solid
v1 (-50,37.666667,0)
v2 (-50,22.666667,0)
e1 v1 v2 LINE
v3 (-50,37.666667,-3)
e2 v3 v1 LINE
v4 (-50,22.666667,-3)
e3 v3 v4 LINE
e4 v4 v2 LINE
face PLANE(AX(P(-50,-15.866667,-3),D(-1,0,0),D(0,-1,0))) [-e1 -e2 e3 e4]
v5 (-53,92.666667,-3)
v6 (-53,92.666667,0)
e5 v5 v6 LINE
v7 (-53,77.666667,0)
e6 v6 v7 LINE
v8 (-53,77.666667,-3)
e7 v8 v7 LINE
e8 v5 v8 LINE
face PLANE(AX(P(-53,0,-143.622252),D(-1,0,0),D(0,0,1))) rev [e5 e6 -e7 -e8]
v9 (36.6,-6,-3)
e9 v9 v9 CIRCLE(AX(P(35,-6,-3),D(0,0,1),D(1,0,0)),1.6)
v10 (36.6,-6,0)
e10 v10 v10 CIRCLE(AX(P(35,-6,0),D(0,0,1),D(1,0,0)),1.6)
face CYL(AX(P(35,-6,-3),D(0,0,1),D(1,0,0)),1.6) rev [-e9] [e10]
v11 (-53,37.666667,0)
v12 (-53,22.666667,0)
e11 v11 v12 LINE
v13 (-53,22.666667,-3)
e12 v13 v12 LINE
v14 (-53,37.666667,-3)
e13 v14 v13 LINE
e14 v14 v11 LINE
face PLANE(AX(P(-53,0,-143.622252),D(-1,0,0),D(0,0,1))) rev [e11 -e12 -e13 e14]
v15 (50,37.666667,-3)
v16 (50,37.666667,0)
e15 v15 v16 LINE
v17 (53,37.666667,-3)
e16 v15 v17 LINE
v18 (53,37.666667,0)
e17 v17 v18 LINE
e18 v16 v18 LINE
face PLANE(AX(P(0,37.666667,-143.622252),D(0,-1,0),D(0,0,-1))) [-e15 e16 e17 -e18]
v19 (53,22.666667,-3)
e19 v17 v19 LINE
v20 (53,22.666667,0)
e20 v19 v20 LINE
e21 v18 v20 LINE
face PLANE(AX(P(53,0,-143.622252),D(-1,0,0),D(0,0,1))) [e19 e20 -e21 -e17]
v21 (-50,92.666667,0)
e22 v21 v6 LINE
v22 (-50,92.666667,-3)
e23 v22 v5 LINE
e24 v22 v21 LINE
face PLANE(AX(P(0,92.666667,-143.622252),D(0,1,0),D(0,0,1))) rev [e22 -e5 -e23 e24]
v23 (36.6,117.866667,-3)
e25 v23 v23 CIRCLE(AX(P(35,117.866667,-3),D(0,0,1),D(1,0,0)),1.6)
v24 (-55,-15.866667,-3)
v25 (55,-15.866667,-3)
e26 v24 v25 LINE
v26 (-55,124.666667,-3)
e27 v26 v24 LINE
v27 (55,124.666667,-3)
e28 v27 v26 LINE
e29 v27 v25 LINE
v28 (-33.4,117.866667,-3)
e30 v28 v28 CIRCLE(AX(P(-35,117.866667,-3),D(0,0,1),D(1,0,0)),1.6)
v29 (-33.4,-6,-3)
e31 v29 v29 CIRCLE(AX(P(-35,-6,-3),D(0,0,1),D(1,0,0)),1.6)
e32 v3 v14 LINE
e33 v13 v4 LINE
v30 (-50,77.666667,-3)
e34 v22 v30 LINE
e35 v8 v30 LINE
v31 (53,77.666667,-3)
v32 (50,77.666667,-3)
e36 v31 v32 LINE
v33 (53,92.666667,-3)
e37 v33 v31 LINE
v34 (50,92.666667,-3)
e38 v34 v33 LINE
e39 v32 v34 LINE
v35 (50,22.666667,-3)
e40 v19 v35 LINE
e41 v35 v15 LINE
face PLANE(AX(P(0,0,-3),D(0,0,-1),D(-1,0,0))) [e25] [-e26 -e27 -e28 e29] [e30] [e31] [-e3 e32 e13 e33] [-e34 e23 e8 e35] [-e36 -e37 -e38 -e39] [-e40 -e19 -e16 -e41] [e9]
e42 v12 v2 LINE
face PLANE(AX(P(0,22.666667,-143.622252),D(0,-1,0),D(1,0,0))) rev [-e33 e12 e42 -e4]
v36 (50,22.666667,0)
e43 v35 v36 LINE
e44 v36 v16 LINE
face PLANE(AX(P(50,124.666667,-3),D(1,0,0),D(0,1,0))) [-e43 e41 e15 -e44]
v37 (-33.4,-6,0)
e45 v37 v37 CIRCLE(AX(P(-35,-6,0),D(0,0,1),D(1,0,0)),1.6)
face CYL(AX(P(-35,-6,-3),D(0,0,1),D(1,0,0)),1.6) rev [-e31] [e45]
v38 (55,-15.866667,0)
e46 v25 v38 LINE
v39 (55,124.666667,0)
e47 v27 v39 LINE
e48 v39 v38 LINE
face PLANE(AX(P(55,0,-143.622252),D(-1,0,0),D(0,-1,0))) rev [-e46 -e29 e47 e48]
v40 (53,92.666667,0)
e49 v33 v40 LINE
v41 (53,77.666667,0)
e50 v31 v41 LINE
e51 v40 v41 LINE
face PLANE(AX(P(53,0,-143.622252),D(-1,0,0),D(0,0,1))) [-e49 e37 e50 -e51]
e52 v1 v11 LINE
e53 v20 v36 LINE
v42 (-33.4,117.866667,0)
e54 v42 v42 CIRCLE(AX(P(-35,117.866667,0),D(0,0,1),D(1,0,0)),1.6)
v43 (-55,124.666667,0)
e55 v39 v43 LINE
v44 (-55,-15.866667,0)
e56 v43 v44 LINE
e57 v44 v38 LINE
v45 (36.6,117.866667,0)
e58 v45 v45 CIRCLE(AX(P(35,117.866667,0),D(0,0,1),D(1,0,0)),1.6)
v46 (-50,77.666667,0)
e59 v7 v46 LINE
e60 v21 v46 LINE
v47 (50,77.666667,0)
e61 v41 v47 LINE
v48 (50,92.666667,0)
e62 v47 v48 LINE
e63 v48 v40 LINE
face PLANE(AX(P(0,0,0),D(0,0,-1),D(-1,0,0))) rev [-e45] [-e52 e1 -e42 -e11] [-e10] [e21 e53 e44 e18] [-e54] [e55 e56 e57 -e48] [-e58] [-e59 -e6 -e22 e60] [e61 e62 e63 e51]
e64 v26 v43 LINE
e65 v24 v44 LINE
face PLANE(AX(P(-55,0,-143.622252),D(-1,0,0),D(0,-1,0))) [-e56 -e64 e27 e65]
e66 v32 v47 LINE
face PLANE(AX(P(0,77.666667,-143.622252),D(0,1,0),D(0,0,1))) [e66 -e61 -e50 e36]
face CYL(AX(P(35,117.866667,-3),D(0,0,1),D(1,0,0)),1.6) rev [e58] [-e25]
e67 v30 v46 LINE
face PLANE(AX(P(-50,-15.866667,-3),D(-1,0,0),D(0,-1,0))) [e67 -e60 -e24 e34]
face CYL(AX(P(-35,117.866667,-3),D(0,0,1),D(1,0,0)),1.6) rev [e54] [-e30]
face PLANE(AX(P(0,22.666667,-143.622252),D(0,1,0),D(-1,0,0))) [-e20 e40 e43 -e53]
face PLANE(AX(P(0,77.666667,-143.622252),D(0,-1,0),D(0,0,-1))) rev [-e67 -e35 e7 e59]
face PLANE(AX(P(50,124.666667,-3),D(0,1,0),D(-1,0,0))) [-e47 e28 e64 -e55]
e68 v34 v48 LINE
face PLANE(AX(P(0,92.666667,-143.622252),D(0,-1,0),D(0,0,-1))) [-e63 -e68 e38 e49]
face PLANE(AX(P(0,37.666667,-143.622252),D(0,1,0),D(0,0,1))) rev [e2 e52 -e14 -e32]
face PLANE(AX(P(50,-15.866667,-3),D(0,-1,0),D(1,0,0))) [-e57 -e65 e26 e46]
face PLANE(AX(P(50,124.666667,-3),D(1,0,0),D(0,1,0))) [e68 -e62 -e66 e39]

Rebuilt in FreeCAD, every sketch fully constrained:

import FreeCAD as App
import Part
import Sketcher

doc = App.newDocument("Part")
body = doc.addObject("PartDesign::Body", "Body")

# Sketch on XY plane
sketch1 = body.newObject("Sketcher::SketchObject", "Sketch")
sketch1.AttachmentSupport = (doc.getObject("XY_Plane"), [""])
sketch1.MapMode = "FlatFace"
sketch1.addGeometry([
    Part.LineSegment(App.Vector(-50, 124.7, 0), App.Vector(-50, -15.9, 0)),  # 0
    Part.LineSegment(App.Vector(-50, -15.9, 0), App.Vector(50, -15.9, 0)),  # 1
    Part.LineSegment(App.Vector(50, -15.9, 0), App.Vector(50, 124.7, 0)),  # 2
    Part.LineSegment(App.Vector(50, 124.7, 0), App.Vector(-50, 124.7, 0)),  # 3
    Part.Circle(App.Vector(-35, -6, 0), App.Vector(0, 0, 1), 1.6),  # 4
    Part.Circle(App.Vector(35, -6, 0), App.Vector(0, 0, 1), 1.6),  # 5
    Part.Circle(App.Vector(-35, 117.9, 0), App.Vector(0, 0, 1), 1.6),  # 6
    Part.Circle(App.Vector(35, 117.9, 0), App.Vector(0, 0, 1), 1.6),  # 7
], False)
sketch1.addConstraint([
    Sketcher.Constraint("Coincident", 0, 2, 1, 1),
    Sketcher.Constraint("Coincident", 1, 2, 2, 1),
    Sketcher.Constraint("Coincident", 2, 2, 3, 1),
    Sketcher.Constraint("Coincident", 3, 2, 0, 1),
    Sketcher.Constraint("Vertical", 0),
    Sketcher.Constraint("Horizontal", 1),
    Sketcher.Constraint("Vertical", 2),
    Sketcher.Constraint("Horizontal", 3),
    Sketcher.Constraint("Equal", 4, 5),
    Sketcher.Constraint("Equal", 5, 6),
    Sketcher.Constraint("Equal", 6, 7),
    Sketcher.Constraint("Symmetric", 4, 3, 5, 3, -2),
    Sketcher.Constraint("Symmetric", 6, 3, 7, 3, -2),
    Sketcher.Constraint("Vertical", 4, 3, 6, 3),
    Sketcher.Constraint("Diameter", 4, 3.2),
    Sketcher.Constraint("DistanceX", 1, 1, 1, 2, 100.0),
    Sketcher.Constraint("DistanceX", 4, 3, -1, 1, 35.0),
    Sketcher.Constraint("DistanceY", 4, 3, -1, 1, 6.0),
    Sketcher.Constraint("DistanceX", 0, 2, -1, 1, 50.0),
    Sketcher.Constraint("DistanceY", 7, 3, 2, 2, 6.8),
    Sketcher.Constraint("DistanceY", 0, 2, 0, 1, 140.533333),
    Sketcher.Constraint("DistanceY", -1, 1, 6, 3, 117.866667),
])
pad1 = body.newObject("PartDesign::Pad", "Pad")
pad1.Profile = sketch1
pad1.Length = 3
pad1.Reversed = True

# Sketch on XY plane
sketch2 = body.newObject("Sketcher::SketchObject", "Sketch001")
sketch2.AttachmentSupport = (doc.getObject("XY_Plane"), [""])
sketch2.MapMode = "FlatFace"
sketch2.addGeometry([
    Part.LineSegment(App.Vector(-50, 92.7, 0), App.Vector(-50, 124.7, 0)),  # 0
    Part.LineSegment(App.Vector(-50, 124.7, 0), App.Vector(-55, 124.7, 0)),  # 1
    Part.LineSegment(App.Vector(-55, 124.7, 0), App.Vector(-55, -15.9, 0)),  # 2
    Part.LineSegment(App.Vector(-55, -15.9, 0), App.Vector(-50, -15.9, 0)),  # 3
    Part.LineSegment(App.Vector(-50, -15.9, 0), App.Vector(-50, 22.7, 0)),  # 4
    Part.LineSegment(App.Vector(-50, 22.7, 0), App.Vector(-53, 22.7, 0)),  # 5
    Part.LineSegment(App.Vector(-53, 22.7, 0), App.Vector(-53, 37.7, 0)),  # 6
    Part.LineSegment(App.Vector(-53, 37.7, 0), App.Vector(-50, 37.7, 0)),  # 7
    Part.LineSegment(App.Vector(-50, 37.7, 0), App.Vector(-50, 77.7, 0)),  # 8
    Part.LineSegment(App.Vector(-50, 77.7, 0), App.Vector(-53, 77.7, 0)),  # 9
    Part.LineSegment(App.Vector(-53, 77.7, 0), App.Vector(-53, 92.7, 0)),  # 10
    Part.LineSegment(App.Vector(-53, 92.7, 0), App.Vector(-50, 92.7, 0)),  # 11
], False)
sketch2.addConstraint([
    Sketcher.Constraint("Coincident", 0, 2, 1, 1),
    Sketcher.Constraint("Coincident", 1, 2, 2, 1),
    Sketcher.Constraint("Coincident", 2, 2, 3, 1),
    Sketcher.Constraint("Coincident", 3, 2, 4, 1),
    Sketcher.Constraint("Coincident", 4, 2, 5, 1),
    Sketcher.Constraint("Coincident", 5, 2, 6, 1),
    Sketcher.Constraint("Coincident", 6, 2, 7, 1),
    Sketcher.Constraint("Coincident", 7, 2, 8, 1),
    Sketcher.Constraint("Coincident", 8, 2, 9, 1),
    Sketcher.Constraint("Coincident", 9, 2, 10, 1),
    Sketcher.Constraint("Coincident", 10, 2, 11, 1),
    Sketcher.Constraint("Coincident", 11, 2, 0, 1),
    Sketcher.Constraint("Vertical", 0),
    Sketcher.Constraint("Horizontal", 1),
    Sketcher.Constraint("Vertical", 2),
    Sketcher.Constraint("Horizontal", 3),
    Sketcher.Constraint("Vertical", 4),
    Sketcher.Constraint("Horizontal", 5),
    Sketcher.Constraint("Vertical", 6),
    Sketcher.Constraint("Horizontal", 7),
    Sketcher.Constraint("Vertical", 8),
    Sketcher.Constraint("Horizontal", 9),
    Sketcher.Constraint("Vertical", 10),
    Sketcher.Constraint("Horizontal", 11),
    Sketcher.Constraint("Vertical", 0, 2, 3, 2),
    Sketcher.Constraint("Vertical", 4, 2, 7, 2),
    Sketcher.Constraint("Vertical", 6, 2, 9, 2),
    Sketcher.Constraint("Equal", 6, 10),
    Sketcher.Constraint("DistanceX", 1, 2, 1, 1, 5.0),
    Sketcher.Constraint("DistanceX", 5, 2, 5, 1, 3.0),
    Sketcher.Constraint("DistanceY", 0, 1, 0, 2, 32.0),
    Sketcher.Constraint("DistanceY", 6, 1, 6, 2, 15.0),
    Sketcher.Constraint("DistanceY", 8, 1, 8, 2, 40.0),
    Sketcher.Constraint("DistanceX", 0, 2, -1, 1, 50.0),
    Sketcher.Constraint("DistanceY", 2, 2, 2, 1, 140.533333),
    Sketcher.Constraint("DistanceY", -1, 1, 0, 2, 124.666667),
])
pad2 = body.newObject("PartDesign::Pad", "Pad001")
pad2.Profile = sketch2
pad2.Length = 3
pad2.Reversed = True
doc.recompute()

mirrored = body.newObject("PartDesign::Mirrored", "Mirrored")
mirrored.Originals = [pad2]
mirrored.MirrorPlane = (doc.getObject("YZ_Plane"), [""])
body.Tip = mirrored

doc.recompute()
